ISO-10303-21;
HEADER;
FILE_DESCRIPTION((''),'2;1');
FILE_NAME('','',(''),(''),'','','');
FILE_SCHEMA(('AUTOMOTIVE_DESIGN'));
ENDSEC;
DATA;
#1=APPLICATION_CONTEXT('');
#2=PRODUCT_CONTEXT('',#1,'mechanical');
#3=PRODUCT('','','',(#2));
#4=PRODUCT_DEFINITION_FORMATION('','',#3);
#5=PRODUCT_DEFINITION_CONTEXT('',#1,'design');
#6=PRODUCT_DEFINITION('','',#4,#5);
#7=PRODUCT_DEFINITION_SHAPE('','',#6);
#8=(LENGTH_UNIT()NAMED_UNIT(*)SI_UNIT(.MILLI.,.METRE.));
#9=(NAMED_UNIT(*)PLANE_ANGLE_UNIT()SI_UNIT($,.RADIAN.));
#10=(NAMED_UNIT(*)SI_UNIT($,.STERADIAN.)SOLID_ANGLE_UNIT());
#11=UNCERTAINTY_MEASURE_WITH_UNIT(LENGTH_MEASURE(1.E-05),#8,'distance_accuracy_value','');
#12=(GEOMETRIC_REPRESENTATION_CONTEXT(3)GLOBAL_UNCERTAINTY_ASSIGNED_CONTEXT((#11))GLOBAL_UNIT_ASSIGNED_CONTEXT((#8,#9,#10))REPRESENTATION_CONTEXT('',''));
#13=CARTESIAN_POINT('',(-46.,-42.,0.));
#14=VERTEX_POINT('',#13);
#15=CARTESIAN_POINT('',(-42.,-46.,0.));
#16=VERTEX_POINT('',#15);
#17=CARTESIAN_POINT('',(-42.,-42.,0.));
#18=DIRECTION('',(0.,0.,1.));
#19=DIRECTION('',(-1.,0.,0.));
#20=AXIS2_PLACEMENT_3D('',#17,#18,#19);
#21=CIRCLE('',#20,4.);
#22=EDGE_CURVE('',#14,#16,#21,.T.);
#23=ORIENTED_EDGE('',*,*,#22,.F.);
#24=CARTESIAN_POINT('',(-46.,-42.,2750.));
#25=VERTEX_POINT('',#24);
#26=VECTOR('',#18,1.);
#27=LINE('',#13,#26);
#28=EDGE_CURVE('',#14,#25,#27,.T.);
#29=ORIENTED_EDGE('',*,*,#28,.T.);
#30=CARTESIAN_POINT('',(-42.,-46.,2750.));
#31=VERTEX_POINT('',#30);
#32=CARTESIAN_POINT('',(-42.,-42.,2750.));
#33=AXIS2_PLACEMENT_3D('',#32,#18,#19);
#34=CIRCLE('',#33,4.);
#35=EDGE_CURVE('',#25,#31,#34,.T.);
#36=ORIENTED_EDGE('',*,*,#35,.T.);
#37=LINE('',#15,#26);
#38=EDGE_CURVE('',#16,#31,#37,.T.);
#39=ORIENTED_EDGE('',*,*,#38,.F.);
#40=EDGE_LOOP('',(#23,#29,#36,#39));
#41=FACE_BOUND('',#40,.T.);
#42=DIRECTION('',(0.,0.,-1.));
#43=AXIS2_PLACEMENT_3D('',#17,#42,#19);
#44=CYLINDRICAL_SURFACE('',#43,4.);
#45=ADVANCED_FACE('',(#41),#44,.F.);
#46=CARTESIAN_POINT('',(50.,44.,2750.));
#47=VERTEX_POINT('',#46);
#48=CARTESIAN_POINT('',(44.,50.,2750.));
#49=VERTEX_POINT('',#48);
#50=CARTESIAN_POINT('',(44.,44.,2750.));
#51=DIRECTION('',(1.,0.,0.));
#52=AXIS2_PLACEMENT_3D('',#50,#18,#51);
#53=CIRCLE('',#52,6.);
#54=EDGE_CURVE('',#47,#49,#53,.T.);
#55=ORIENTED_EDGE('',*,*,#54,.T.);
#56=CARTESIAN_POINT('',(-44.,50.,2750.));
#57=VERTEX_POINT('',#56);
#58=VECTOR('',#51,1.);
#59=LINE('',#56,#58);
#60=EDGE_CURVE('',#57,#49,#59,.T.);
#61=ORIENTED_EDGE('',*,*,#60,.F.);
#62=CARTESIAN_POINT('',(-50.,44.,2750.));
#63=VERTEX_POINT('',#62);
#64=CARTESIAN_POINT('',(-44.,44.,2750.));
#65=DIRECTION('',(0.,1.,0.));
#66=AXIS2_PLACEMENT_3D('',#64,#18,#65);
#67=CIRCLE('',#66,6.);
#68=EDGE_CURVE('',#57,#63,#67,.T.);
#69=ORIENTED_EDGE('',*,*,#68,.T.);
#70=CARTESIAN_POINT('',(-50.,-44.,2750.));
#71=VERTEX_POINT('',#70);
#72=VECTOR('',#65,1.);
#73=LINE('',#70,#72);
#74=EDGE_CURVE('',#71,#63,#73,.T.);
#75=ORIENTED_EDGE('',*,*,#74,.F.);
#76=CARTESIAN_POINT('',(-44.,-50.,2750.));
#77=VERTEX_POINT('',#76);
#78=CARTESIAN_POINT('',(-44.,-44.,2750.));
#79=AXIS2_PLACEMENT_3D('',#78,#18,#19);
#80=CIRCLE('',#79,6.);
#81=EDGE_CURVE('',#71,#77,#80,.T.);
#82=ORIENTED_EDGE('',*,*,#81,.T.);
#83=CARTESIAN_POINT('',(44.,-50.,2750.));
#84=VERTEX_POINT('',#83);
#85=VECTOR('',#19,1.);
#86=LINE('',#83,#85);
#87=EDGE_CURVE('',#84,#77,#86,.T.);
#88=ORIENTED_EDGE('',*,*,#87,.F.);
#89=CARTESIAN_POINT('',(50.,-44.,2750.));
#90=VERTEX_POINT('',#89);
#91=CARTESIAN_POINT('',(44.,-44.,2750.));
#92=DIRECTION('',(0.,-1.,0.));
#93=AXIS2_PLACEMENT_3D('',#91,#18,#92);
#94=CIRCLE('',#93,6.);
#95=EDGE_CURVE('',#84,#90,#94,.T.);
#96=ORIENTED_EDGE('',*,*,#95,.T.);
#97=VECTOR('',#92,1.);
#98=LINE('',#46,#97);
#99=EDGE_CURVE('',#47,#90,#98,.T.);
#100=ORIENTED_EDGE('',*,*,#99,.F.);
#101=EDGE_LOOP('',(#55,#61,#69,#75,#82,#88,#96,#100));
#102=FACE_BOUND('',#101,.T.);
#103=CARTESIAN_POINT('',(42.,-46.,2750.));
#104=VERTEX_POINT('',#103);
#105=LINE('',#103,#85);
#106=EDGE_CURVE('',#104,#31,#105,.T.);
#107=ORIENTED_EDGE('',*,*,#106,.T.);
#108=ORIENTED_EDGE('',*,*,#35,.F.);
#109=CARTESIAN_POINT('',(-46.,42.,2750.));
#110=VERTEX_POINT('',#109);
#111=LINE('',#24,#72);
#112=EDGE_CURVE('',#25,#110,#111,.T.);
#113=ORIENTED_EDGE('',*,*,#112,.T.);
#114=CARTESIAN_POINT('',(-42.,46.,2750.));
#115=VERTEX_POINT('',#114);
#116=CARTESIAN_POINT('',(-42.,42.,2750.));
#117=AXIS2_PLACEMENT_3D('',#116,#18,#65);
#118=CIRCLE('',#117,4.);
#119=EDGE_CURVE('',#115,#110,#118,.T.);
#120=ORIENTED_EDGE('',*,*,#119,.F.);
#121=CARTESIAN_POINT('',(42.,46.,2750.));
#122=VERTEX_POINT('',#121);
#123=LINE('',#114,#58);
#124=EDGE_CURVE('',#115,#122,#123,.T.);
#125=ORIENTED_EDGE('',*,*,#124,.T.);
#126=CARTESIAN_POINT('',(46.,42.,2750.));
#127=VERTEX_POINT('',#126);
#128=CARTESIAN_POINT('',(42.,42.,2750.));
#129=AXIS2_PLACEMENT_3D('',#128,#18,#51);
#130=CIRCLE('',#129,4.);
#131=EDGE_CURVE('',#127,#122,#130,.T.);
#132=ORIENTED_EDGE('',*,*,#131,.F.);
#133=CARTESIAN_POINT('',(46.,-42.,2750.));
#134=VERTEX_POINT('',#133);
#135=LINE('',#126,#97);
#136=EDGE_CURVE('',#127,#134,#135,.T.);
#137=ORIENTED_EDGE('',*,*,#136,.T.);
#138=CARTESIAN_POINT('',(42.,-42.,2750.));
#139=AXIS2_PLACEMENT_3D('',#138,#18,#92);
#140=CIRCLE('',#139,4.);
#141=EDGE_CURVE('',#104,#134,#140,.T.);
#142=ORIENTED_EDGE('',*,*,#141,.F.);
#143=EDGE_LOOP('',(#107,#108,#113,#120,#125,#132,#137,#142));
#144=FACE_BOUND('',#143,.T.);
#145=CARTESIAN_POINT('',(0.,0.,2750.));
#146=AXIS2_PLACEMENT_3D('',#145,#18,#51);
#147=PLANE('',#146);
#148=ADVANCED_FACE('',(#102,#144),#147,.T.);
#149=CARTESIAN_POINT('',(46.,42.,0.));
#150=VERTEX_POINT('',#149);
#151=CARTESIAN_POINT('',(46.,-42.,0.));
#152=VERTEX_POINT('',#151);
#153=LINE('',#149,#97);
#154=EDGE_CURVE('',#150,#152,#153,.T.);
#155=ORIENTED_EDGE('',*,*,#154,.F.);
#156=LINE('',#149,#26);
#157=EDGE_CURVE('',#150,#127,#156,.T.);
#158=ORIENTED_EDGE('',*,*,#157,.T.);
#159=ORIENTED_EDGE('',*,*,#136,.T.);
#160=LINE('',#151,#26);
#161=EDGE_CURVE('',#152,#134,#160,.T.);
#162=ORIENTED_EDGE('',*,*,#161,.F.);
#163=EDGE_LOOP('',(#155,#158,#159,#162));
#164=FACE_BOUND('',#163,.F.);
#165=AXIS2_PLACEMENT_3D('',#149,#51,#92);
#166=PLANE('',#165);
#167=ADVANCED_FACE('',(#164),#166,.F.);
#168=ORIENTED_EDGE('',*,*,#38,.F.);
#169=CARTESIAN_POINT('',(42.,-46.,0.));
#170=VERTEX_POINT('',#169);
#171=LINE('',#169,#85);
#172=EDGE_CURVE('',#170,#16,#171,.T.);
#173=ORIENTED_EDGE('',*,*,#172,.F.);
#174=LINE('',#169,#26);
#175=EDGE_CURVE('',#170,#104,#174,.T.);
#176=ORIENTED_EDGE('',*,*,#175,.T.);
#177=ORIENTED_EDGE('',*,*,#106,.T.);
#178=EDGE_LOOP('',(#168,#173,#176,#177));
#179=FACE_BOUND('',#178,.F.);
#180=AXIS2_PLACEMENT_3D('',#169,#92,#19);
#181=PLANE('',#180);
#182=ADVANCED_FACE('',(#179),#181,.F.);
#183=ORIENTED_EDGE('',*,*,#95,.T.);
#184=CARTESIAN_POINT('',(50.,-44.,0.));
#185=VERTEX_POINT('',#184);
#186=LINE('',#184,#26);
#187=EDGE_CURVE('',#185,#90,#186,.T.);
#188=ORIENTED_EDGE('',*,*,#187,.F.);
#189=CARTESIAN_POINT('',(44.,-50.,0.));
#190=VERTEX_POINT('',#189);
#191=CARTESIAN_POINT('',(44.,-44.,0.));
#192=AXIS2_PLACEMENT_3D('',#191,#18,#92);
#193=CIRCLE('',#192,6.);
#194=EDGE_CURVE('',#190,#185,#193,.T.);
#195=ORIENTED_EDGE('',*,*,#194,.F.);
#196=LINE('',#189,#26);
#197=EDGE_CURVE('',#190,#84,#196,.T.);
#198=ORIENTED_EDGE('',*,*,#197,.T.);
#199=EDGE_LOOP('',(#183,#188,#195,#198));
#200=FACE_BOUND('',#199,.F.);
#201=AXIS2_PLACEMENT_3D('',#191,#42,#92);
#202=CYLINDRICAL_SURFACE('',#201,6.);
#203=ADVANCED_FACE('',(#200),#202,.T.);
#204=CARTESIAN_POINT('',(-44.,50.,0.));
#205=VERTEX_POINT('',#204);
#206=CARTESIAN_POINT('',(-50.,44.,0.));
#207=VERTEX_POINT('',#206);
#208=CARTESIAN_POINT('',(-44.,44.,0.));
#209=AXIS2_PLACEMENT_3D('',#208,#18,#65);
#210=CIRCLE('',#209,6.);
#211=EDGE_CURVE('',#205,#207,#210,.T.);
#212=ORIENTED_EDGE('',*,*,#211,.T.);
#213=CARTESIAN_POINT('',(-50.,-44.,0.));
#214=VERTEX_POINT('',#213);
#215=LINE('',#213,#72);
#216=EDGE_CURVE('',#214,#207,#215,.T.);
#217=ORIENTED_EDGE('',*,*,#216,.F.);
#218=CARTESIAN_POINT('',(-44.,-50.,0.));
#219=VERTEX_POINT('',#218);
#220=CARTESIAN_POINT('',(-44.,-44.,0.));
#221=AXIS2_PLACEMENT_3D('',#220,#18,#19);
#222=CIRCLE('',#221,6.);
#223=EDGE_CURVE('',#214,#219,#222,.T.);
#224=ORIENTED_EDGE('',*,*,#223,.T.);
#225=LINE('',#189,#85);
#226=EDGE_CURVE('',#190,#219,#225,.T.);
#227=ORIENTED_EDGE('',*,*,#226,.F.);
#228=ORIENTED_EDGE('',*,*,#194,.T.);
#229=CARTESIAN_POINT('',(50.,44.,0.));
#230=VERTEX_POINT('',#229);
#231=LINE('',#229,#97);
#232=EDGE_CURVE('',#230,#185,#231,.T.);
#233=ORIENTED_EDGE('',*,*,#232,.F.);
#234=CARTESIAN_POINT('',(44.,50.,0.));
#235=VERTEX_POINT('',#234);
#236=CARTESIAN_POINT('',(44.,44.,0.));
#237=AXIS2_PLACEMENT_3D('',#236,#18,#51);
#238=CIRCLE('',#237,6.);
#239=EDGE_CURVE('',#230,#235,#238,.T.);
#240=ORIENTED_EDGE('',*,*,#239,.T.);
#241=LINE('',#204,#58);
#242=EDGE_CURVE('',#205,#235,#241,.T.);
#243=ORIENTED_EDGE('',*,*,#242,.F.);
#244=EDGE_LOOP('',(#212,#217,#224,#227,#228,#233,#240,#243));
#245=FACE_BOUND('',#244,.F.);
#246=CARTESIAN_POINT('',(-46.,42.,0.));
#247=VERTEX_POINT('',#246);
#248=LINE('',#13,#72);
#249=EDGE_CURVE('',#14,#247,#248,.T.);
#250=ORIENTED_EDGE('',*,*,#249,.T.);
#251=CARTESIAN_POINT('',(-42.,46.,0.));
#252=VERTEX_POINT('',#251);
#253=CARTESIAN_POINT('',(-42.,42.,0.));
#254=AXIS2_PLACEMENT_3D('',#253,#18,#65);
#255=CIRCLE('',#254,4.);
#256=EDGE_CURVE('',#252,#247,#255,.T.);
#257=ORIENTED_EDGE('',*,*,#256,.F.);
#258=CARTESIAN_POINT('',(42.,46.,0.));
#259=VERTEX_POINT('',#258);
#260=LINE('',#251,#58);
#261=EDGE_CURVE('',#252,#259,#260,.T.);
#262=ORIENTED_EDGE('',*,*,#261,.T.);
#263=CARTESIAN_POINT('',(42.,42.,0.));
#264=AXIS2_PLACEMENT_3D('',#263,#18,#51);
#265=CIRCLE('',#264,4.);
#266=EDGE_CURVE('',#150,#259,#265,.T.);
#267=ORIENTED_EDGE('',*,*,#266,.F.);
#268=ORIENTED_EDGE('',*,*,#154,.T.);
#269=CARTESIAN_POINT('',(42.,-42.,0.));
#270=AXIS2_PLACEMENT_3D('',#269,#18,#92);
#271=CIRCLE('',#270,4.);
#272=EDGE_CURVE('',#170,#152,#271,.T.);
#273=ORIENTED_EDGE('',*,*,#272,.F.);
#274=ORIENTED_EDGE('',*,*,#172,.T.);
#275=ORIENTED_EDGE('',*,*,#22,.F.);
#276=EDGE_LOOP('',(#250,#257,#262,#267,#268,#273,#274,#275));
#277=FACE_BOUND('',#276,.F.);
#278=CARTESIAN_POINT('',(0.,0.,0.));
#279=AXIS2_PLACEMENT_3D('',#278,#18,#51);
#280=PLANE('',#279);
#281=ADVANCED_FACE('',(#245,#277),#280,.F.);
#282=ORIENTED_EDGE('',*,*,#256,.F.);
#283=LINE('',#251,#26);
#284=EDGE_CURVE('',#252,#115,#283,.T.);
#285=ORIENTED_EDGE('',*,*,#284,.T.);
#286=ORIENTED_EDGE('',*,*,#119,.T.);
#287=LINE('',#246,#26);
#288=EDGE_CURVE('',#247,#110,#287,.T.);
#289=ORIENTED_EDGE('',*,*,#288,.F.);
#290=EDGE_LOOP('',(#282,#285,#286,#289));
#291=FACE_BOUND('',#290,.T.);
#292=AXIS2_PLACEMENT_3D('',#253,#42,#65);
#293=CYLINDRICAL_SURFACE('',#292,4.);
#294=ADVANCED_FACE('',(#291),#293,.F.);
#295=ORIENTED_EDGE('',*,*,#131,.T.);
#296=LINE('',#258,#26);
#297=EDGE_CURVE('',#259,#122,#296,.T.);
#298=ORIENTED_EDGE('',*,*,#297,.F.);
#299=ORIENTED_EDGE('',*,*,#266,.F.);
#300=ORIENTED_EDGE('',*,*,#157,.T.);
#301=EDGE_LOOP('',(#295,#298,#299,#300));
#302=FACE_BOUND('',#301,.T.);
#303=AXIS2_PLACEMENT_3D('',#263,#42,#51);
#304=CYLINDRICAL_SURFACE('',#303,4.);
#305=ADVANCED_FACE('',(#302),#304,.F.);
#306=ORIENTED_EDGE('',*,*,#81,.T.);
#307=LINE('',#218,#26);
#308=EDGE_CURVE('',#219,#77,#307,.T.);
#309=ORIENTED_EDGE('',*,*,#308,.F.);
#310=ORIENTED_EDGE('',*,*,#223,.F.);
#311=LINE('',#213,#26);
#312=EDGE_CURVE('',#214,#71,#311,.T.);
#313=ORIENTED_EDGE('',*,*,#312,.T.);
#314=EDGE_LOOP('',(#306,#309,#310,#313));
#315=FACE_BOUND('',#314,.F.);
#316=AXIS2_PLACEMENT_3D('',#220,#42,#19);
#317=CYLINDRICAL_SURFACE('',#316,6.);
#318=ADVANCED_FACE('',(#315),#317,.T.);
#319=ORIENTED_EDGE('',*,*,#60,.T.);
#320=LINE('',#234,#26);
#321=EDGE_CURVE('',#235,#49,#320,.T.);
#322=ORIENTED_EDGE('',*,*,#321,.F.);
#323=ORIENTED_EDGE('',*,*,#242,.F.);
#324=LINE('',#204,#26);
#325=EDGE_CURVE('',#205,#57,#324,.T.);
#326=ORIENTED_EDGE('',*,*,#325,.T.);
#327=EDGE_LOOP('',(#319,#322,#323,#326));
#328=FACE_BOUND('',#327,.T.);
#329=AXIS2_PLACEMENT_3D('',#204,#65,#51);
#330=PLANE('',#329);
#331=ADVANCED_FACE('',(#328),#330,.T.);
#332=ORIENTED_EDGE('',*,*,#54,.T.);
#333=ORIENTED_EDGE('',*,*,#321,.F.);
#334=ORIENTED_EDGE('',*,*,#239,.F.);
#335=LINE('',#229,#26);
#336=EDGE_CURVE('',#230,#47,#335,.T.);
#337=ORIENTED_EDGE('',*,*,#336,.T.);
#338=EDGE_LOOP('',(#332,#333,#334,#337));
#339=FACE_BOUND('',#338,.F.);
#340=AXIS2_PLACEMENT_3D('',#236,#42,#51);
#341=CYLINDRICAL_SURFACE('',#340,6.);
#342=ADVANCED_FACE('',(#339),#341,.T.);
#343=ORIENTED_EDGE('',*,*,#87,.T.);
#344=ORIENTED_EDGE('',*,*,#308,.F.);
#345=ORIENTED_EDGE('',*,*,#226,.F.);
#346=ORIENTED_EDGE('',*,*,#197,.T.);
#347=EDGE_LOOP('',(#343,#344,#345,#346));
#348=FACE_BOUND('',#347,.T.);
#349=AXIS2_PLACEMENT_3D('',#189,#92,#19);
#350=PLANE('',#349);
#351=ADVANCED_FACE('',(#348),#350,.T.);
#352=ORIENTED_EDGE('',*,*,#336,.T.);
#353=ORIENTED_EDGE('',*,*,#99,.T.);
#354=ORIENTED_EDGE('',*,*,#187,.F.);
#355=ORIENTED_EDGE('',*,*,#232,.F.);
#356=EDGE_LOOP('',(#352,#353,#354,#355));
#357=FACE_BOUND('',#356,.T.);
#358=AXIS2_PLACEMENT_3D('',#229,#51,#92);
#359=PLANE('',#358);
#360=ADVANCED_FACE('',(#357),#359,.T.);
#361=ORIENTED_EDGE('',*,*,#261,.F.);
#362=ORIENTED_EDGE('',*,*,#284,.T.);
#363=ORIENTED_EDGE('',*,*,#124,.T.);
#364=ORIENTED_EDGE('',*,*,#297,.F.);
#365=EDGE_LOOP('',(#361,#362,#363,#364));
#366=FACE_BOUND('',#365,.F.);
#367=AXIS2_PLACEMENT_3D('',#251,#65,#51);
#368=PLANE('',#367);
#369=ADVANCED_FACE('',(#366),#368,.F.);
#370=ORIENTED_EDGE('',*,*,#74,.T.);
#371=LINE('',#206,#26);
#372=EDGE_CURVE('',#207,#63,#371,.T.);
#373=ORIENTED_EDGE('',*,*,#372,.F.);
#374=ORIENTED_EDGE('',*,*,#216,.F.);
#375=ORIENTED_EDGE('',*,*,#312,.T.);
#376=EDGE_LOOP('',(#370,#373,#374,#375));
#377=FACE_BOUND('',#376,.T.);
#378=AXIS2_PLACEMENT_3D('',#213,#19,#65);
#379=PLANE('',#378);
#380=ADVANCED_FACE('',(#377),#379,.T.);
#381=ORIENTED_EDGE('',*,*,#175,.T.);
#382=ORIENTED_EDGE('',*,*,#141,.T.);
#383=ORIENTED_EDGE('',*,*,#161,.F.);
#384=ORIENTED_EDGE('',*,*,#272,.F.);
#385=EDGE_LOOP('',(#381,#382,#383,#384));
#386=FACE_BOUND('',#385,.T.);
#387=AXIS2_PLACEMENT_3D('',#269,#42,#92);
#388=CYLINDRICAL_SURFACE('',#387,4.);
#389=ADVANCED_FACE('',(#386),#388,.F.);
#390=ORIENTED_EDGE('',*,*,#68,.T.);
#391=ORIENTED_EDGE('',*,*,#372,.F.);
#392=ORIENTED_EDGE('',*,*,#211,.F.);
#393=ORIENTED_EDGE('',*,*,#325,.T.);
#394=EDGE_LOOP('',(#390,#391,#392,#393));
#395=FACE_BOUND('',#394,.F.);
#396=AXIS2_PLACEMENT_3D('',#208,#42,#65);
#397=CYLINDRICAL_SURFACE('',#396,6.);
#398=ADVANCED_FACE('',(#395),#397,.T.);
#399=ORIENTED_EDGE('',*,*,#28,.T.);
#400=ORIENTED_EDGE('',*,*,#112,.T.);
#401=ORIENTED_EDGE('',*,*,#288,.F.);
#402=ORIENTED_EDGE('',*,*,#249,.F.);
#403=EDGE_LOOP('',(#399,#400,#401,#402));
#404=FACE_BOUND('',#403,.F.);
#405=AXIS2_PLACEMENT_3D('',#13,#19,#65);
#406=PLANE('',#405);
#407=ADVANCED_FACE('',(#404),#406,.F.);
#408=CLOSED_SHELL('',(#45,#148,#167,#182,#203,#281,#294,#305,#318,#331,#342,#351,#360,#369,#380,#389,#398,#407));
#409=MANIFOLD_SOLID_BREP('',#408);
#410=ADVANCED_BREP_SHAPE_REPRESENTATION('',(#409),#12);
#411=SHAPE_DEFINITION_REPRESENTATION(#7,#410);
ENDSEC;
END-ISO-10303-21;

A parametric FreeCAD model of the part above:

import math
import FreeCAD as App
import Part
import Sketcher
from FreeCAD import Vector

doc = App.newDocument("Part")
body = doc.addObject("PartDesign::Body", "Body")

sketch1 = doc.addObject("Sketcher::SketchObject", "Sketch")
body.addObject(sketch1)
sketch1.AttachmentSupport = (doc.XY_Plane, [""])
sketch1.MapMode = "FlatFace"
sketch1.addGeometry(Part.LineSegment(Vector(-50, 44, 0), Vector(-50, -44, 0)), False)
sketch1.addGeometry(Part.ArcOfCircle(Part.Circle(Vector(-44, -44, 0), Vector(0, 0, 1), 6), math.radians(180), math.radians(270)), False)
sketch1.addGeometry(Part.LineSegment(Vector(-44, -50, 0), Vector(44, -50, 0)), False)
sketch1.addGeometry(Part.ArcOfCircle(Part.Circle(Vector(44, -44, 0), Vector(0, 0, 1), 6), math.radians(-90), math.radians(0)), False)
sketch1.addGeometry(Part.LineSegment(Vector(50, -44, 0), Vector(50, 44, 0)), False)
sketch1.addGeometry(Part.ArcOfCircle(Part.Circle(Vector(44, 44, 0), Vector(0, 0, 1), 6), math.radians(0), math.radians(90)), False)
sketch1.addGeometry(Part.LineSegment(Vector(44, 50, 0), Vector(-44, 50, 0)), False)
sketch1.addGeometry(Part.ArcOfCircle(Part.Circle(Vector(-44, 44, 0), Vector(0, 0, 1), 6), math.radians(90), math.radians(180)), False)
sketch1.addGeometry(Part.ArcOfCircle(Part.Circle(Vector(-42, 42, 0), Vector(0, 0, 1), 4), math.radians(90), math.radians(180)), False)
sketch1.addGeometry(Part.LineSegment(Vector(-42, 46, 0), Vector(42, 46, 0)), False)
sketch1.addGeometry(Part.ArcOfCircle(Part.Circle(Vector(42, 42, 0), Vector(0, 0, 1), 4), math.radians(0), math.radians(90)), False)
sketch1.addGeometry(Part.LineSegment(Vector(46, 42, 0), Vector(46, -42, 0)), False)
sketch1.addGeometry(Part.ArcOfCircle(Part.Circle(Vector(42, -42, 0), Vector(0, 0, 1), 4), math.radians(-90), math.radians(0)), False)
sketch1.addGeometry(Part.LineSegment(Vector(42, -46, 0), Vector(-42, -46, 0)), False)
sketch1.addGeometry(Part.ArcOfCircle(Part.Circle(Vector(-42, -42, 0), Vector(0, 0, 1), 4), math.radians(180), math.radians(270)), False)
sketch1.addGeometry(Part.LineSegment(Vector(-46, -42, 0), Vector(-46, 42, 0)), False)
sketch1.addConstraint(Sketcher.Constraint("Tangent", 0, 2, 1, 1))
sketch1.addConstraint(Sketcher.Constraint("Tangent", 1, 2, 2, 1))
sketch1.addConstraint(Sketcher.Constraint("Tangent", 2, 2, 3, 1))
sketch1.addConstraint(Sketcher.Constraint("Tangent", 3, 2, 4, 1))
sketch1.addConstraint(Sketcher.Constraint("Tangent", 4, 2, 5, 1))
sketch1.addConstraint(Sketcher.Constraint("Tangent", 5, 2, 6, 1))
sketch1.addConstraint(Sketcher.Constraint("Tangent", 6, 2, 7, 1))
sketch1.addConstraint(Sketcher.Constraint("Tangent", 7, 2, 0, 1))
sketch1.addConstraint(Sketcher.Constraint("Tangent", 8, 1, 9, 1))
sketch1.addConstraint(Sketcher.Constraint("Tangent", 9, 2, 10, 2))
sketch1.addConstraint(Sketcher.Constraint("Tangent", 10, 1, 11, 1))
sketch1.addConstraint(Sketcher.Constraint("Tangent", 11, 2, 12, 2))
sketch1.addConstraint(Sketcher.Constraint("Tangent", 12, 1, 13, 1))
sketch1.addConstraint(Sketcher.Constraint("Tangent", 13, 2, 14, 2))
sketch1.addConstraint(Sketcher.Constraint("Tangent", 14, 1, 15, 1))
sketch1.addConstraint(Sketcher.Constraint("Tangent", 15, 2, 8, 2))
sketch1.addConstraint(Sketcher.Constraint("Vertical", 0))
sketch1.addConstraint(Sketcher.Constraint("Horizontal", 2))
sketch1.addConstraint(Sketcher.Constraint("Vertical", 4))
sketch1.addConstraint(Sketcher.Constraint("Horizontal", 6))
sketch1.addConstraint(Sketcher.Constraint("Horizontal", 9))
sketch1.addConstraint(Sketcher.Constraint("Vertical", 11))
sketch1.addConstraint(Sketcher.Constraint("Horizontal", 13))
sketch1.addConstraint(Sketcher.Constraint("Vertical", 15))
sketch1.addConstraint(Sketcher.Constraint("Equal", 1, 3))
sketch1.addConstraint(Sketcher.Constraint("Equal", 3, 5))
sketch1.addConstraint(Sketcher.Constraint("Equal", 5, 7))
sketch1.addConstraint(Sketcher.Constraint("Equal", 8, 10))
sketch1.addConstraint(Sketcher.Constraint("Equal", 10, 12))
sketch1.addConstraint(Sketcher.Constraint("Equal", 12, 14))
sketch1.addConstraint(Sketcher.Constraint("Symmetric", 1, 3, 5, 3, -1, 1))
sketch1.addConstraint(Sketcher.Constraint("Symmetric", 8, 3, 12, 3, -1, 1))
sketch1.addConstraint(Sketcher.Constraint("Equal", 6, 0))
sketch1.addConstraint(Sketcher.Constraint("Equal", 13, 11))
sketch1.addConstraint(Sketcher.Constraint("Radius", 1, 6.0))
sketch1.addConstraint(Sketcher.Constraint("Radius", 8, 4.0))
sketch1.addConstraint(Sketcher.Constraint("DistanceX", 0, 2, -1, 1, 50.0))
sketch1.addConstraint(Sketcher.Constraint("DistanceY", 8, 1, 6, 2, 4.0))
pad1 = doc.addObject("PartDesign::Pad", "Pad")
body.addObject(pad1)
pad1.Profile = sketch1
pad1.Length = 2750

doc.recompute()
